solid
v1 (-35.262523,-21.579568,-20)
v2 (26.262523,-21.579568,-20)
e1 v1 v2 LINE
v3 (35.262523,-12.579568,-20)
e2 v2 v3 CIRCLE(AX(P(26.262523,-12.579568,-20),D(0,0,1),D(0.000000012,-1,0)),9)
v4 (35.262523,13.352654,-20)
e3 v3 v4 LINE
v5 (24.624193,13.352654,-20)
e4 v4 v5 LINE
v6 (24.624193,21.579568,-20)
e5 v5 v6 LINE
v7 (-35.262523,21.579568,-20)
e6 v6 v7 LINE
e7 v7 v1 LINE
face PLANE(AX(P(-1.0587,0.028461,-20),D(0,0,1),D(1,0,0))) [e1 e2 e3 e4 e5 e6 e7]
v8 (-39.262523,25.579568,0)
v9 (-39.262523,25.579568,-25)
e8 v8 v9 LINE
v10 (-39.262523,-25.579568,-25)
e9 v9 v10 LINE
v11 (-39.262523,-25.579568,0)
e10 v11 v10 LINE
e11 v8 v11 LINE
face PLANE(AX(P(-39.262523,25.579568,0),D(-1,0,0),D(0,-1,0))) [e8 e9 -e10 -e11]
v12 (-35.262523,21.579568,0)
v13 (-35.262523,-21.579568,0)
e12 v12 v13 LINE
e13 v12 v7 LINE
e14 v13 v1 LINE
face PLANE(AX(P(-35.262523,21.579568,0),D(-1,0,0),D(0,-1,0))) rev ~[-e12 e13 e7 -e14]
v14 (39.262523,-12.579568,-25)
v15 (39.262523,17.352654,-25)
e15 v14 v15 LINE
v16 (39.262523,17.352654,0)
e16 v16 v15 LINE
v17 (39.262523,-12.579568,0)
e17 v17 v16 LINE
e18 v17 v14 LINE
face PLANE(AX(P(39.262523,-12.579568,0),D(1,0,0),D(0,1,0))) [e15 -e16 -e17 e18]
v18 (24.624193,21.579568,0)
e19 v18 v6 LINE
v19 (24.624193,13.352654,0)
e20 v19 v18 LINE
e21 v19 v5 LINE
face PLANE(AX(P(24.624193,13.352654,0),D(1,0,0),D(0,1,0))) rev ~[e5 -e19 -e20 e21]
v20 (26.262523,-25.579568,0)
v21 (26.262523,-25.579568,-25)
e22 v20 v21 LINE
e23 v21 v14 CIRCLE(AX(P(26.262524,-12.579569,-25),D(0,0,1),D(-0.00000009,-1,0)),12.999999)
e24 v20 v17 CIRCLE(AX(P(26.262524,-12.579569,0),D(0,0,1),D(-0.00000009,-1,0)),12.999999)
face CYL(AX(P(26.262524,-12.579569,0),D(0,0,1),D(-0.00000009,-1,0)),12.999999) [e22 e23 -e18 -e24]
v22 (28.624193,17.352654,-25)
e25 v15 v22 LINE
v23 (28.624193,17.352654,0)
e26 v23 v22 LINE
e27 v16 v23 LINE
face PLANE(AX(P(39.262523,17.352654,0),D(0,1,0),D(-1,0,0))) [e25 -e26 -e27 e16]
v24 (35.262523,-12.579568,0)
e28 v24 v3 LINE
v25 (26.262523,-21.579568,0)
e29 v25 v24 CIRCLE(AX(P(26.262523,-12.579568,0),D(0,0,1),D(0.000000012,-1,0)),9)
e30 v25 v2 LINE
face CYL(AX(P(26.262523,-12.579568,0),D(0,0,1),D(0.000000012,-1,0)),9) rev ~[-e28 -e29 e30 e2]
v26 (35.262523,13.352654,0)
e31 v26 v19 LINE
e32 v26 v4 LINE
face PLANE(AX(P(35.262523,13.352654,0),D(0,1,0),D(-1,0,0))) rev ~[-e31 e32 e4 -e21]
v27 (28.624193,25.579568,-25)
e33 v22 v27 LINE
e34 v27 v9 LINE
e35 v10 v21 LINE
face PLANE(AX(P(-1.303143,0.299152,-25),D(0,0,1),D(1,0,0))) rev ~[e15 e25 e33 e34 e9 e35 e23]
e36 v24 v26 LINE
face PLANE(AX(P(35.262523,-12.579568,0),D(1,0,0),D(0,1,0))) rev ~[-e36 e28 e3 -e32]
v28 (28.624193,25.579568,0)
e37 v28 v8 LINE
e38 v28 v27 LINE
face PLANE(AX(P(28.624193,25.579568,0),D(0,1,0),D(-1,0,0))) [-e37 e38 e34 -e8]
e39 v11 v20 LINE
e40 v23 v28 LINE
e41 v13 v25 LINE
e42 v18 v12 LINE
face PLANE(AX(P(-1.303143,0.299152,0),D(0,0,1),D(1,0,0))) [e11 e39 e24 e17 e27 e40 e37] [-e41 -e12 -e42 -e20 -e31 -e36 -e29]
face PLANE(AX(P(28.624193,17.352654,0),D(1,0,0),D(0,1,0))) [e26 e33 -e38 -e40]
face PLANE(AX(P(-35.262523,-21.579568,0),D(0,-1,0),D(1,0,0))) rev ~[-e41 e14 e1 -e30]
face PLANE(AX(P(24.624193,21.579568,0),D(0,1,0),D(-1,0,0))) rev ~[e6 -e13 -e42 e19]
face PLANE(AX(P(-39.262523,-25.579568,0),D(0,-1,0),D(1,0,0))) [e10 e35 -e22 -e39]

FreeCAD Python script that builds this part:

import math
import FreeCAD as App
import Part
import Sketcher

V = App.Vector

doc = App.newDocument("Part")
body = doc.addObject("PartDesign::Body", "Body")

sketch1 = doc.addObject("Sketcher::SketchObject", "Sketch")
body.addObject(sketch1)
sketch1.AttachmentSupport = (doc.XY_Plane, [""])
sketch1.MapMode = "FlatFace"
sketch1.addGeometry(Part.LineSegment(V(-39, -26, 0), V(26, -26, 0)), False)
sketch1.addGeometry(Part.ArcOfCircle(Part.Circle(V(26, -13, 0), V(0, 0, 1), 13), math.radians(-90), math.radians(0)), False)
sketch1.addGeometry(Part.LineSegment(V(39, -13, 0), V(39, 17, 0)), False)
sketch1.addGeometry(Part.LineSegment(V(39, 17, 0), V(29, 17, 0)), False)
sketch1.addGeometry(Part.LineSegment(V(29, 17, 0), V(29, 26, 0)), False)
sketch1.addGeometry(Part.LineSegment(V(29, 26, 0), V(-39, 26, 0)), False)
sketch1.addGeometry(Part.LineSegment(V(-39, 26, 0), V(-39, -26, 0)), False)
sketch1.addConstraint(Sketcher.Constraint("Tangent", 0, 2, 1, 1))
sketch1.addConstraint(Sketcher.Constraint("Tangent", 1, 2, 2, 1))
sketch1.addConstraint(Sketcher.Constraint("Coincident", 2, 2, 3, 1))
sketch1.addConstraint(Sketcher.Constraint("Coincident", 3, 2, 4, 1))
sketch1.addConstraint(Sketcher.Constraint("Coincident", 4, 2, 5, 1))
sketch1.addConstraint(Sketcher.Constraint("Coincident", 5, 2, 6, 1))
sketch1.addConstraint(Sketcher.Constraint("Coincident", 6, 2, 0, 1))
sketch1.addConstraint(Sketcher.Constraint("Horizontal", 0))
sketch1.addConstraint(Sketcher.Constraint("Vertical", 2))
sketch1.addConstraint(Sketcher.Constraint("Horizontal", 3))
sketch1.addConstraint(Sketcher.Constraint("Vertical", 4))
sketch1.addConstraint(Sketcher.Constraint("Horizontal", 5))
sketch1.addConstraint(Sketcher.Constraint("Vertical", 6))
sketch1.addConstraint(Sketcher.Constraint("Radius", 1, 12.999999))
sketch1.addConstraint(Sketcher.Constraint("DistanceX", 3, 2, 3, 1, 10.63833))
sketch1.addConstraint(Sketcher.Constraint("DistanceX", 0, 1, 0, 2, 65.525046))
sketch1.addConstraint(Sketcher.Constraint("DistanceY", 2, 1, 2, 2, 29.932222))
sketch1.addConstraint(Sketcher.Constraint("DistanceY", 4, 1, 4, 2, 8.226914))
sketch1.addConstraint(Sketcher.Constraint("DistanceY", 1, 3, -1, 1, 12.579569))
sketch1.addConstraint(Sketcher.Constraint("DistanceX", -1, 1, 1, 3, 26.262524))
pad1 = doc.addObject("PartDesign::Pad", "Pad")
body.addObject(pad1)
pad1.Profile = sketch1
pad1.Length = 25
pad1.Reversed = True

sketch2 = doc.addObject("Sketcher::SketchObject", "Sketch001")
body.addObject(sketch2)
sketch2.AttachmentSupport = (doc.XY_Plane, [""])
sketch2.MapMode = "FlatFace"
sketch2.addGeometry(Part.LineSegment(V(35, 13, 0), V(25, 13, 0)), False)
sketch2.addGeometry(Part.LineSegment(V(25, 13, 0), V(25, 22, 0)), False)
sketch2.addGeometry(Part.LineSegment(V(25, 22, 0), V(-35, 22, 0)), False)
sketch2.addGeometry(Part.LineSegment(V(-35, 22, 0), V(-35, -22, 0)), False)
sketch2.addGeometry(Part.LineSegment(V(-35, -22, 0), V(26, -22, 0)), False)
sketch2.addGeometry(Part.ArcOfCircle(Part.Circle(V(26, -13, 0), V(0, 0, 1), 9), math.radians(-90), math.radians(0)), False)
sketch2.addGeometry(Part.LineSegment(V(35, -13, 0), V(35, 13, 0)), False)
sketch2.addConstraint(Sketcher.Constraint("Coincident", 0, 2, 1, 1))
sketch2.addConstraint(Sketcher.Constraint("Coincident", 1, 2, 2, 1))
sketch2.addConstraint(Sketcher.Constraint("Coincident", 2, 2, 3, 1))
sketch2.addConstraint(Sketcher.Constraint("Coincident", 3, 2, 4, 1))
sketch2.addConstraint(Sketcher.Constraint("Tangent", 4, 2, 5, 1))
sketch2.addConstraint(Sketcher.Constraint("Tangent", 5, 2, 6, 1))
sketch2.addConstraint(Sketcher.Constraint("Coincident", 6, 2, 0, 1))
sketch2.addConstraint(Sketcher.Constraint("Horizontal", 0))
sketch2.addConstraint(Sketcher.Constraint("Vertical", 1))
sketch2.addConstraint(Sketcher.Constraint("Horizontal", 2))
sketch2.addConstraint(Sketcher.Constraint("Vertical", 3))
sketch2.addConstraint(Sketcher.Constraint("Horizontal", 4))
sketch2.addConstraint(Sketcher.Constraint("Vertical", 6))
sketch2.addConstraint(Sketcher.Constraint("Radius", 5, 9.0))
sketch2.addConstraint(Sketcher.Constraint("DistanceX", 0, 2, 0, 1, 10.63833))
sketch2.addConstraint(Sketcher.Constraint("DistanceY", 6, 1, 6, 2, 25.932222))
sketch2.addConstraint(Sketcher.Constraint("DistanceX", 2, 2, 2, 1, 59.886716))
sketch2.addConstraint(Sketcher.Constraint("DistanceY", 1, 1, 1, 2, 8.226914))
sketch2.addConstraint(Sketcher.Constraint("DistanceX", -1, 1, 5, 3, 26.262523))
sketch2.addConstraint(Sketcher.Constraint("DistanceY", 5, 3, -1, 1, 12.579568))
pocket1 = doc.addObject("PartDesign::Pocket", "Pocket")
body.addObject(pocket1)
pocket1.Profile = sketch2
pocket1.Length = 20

doc.recompute()
